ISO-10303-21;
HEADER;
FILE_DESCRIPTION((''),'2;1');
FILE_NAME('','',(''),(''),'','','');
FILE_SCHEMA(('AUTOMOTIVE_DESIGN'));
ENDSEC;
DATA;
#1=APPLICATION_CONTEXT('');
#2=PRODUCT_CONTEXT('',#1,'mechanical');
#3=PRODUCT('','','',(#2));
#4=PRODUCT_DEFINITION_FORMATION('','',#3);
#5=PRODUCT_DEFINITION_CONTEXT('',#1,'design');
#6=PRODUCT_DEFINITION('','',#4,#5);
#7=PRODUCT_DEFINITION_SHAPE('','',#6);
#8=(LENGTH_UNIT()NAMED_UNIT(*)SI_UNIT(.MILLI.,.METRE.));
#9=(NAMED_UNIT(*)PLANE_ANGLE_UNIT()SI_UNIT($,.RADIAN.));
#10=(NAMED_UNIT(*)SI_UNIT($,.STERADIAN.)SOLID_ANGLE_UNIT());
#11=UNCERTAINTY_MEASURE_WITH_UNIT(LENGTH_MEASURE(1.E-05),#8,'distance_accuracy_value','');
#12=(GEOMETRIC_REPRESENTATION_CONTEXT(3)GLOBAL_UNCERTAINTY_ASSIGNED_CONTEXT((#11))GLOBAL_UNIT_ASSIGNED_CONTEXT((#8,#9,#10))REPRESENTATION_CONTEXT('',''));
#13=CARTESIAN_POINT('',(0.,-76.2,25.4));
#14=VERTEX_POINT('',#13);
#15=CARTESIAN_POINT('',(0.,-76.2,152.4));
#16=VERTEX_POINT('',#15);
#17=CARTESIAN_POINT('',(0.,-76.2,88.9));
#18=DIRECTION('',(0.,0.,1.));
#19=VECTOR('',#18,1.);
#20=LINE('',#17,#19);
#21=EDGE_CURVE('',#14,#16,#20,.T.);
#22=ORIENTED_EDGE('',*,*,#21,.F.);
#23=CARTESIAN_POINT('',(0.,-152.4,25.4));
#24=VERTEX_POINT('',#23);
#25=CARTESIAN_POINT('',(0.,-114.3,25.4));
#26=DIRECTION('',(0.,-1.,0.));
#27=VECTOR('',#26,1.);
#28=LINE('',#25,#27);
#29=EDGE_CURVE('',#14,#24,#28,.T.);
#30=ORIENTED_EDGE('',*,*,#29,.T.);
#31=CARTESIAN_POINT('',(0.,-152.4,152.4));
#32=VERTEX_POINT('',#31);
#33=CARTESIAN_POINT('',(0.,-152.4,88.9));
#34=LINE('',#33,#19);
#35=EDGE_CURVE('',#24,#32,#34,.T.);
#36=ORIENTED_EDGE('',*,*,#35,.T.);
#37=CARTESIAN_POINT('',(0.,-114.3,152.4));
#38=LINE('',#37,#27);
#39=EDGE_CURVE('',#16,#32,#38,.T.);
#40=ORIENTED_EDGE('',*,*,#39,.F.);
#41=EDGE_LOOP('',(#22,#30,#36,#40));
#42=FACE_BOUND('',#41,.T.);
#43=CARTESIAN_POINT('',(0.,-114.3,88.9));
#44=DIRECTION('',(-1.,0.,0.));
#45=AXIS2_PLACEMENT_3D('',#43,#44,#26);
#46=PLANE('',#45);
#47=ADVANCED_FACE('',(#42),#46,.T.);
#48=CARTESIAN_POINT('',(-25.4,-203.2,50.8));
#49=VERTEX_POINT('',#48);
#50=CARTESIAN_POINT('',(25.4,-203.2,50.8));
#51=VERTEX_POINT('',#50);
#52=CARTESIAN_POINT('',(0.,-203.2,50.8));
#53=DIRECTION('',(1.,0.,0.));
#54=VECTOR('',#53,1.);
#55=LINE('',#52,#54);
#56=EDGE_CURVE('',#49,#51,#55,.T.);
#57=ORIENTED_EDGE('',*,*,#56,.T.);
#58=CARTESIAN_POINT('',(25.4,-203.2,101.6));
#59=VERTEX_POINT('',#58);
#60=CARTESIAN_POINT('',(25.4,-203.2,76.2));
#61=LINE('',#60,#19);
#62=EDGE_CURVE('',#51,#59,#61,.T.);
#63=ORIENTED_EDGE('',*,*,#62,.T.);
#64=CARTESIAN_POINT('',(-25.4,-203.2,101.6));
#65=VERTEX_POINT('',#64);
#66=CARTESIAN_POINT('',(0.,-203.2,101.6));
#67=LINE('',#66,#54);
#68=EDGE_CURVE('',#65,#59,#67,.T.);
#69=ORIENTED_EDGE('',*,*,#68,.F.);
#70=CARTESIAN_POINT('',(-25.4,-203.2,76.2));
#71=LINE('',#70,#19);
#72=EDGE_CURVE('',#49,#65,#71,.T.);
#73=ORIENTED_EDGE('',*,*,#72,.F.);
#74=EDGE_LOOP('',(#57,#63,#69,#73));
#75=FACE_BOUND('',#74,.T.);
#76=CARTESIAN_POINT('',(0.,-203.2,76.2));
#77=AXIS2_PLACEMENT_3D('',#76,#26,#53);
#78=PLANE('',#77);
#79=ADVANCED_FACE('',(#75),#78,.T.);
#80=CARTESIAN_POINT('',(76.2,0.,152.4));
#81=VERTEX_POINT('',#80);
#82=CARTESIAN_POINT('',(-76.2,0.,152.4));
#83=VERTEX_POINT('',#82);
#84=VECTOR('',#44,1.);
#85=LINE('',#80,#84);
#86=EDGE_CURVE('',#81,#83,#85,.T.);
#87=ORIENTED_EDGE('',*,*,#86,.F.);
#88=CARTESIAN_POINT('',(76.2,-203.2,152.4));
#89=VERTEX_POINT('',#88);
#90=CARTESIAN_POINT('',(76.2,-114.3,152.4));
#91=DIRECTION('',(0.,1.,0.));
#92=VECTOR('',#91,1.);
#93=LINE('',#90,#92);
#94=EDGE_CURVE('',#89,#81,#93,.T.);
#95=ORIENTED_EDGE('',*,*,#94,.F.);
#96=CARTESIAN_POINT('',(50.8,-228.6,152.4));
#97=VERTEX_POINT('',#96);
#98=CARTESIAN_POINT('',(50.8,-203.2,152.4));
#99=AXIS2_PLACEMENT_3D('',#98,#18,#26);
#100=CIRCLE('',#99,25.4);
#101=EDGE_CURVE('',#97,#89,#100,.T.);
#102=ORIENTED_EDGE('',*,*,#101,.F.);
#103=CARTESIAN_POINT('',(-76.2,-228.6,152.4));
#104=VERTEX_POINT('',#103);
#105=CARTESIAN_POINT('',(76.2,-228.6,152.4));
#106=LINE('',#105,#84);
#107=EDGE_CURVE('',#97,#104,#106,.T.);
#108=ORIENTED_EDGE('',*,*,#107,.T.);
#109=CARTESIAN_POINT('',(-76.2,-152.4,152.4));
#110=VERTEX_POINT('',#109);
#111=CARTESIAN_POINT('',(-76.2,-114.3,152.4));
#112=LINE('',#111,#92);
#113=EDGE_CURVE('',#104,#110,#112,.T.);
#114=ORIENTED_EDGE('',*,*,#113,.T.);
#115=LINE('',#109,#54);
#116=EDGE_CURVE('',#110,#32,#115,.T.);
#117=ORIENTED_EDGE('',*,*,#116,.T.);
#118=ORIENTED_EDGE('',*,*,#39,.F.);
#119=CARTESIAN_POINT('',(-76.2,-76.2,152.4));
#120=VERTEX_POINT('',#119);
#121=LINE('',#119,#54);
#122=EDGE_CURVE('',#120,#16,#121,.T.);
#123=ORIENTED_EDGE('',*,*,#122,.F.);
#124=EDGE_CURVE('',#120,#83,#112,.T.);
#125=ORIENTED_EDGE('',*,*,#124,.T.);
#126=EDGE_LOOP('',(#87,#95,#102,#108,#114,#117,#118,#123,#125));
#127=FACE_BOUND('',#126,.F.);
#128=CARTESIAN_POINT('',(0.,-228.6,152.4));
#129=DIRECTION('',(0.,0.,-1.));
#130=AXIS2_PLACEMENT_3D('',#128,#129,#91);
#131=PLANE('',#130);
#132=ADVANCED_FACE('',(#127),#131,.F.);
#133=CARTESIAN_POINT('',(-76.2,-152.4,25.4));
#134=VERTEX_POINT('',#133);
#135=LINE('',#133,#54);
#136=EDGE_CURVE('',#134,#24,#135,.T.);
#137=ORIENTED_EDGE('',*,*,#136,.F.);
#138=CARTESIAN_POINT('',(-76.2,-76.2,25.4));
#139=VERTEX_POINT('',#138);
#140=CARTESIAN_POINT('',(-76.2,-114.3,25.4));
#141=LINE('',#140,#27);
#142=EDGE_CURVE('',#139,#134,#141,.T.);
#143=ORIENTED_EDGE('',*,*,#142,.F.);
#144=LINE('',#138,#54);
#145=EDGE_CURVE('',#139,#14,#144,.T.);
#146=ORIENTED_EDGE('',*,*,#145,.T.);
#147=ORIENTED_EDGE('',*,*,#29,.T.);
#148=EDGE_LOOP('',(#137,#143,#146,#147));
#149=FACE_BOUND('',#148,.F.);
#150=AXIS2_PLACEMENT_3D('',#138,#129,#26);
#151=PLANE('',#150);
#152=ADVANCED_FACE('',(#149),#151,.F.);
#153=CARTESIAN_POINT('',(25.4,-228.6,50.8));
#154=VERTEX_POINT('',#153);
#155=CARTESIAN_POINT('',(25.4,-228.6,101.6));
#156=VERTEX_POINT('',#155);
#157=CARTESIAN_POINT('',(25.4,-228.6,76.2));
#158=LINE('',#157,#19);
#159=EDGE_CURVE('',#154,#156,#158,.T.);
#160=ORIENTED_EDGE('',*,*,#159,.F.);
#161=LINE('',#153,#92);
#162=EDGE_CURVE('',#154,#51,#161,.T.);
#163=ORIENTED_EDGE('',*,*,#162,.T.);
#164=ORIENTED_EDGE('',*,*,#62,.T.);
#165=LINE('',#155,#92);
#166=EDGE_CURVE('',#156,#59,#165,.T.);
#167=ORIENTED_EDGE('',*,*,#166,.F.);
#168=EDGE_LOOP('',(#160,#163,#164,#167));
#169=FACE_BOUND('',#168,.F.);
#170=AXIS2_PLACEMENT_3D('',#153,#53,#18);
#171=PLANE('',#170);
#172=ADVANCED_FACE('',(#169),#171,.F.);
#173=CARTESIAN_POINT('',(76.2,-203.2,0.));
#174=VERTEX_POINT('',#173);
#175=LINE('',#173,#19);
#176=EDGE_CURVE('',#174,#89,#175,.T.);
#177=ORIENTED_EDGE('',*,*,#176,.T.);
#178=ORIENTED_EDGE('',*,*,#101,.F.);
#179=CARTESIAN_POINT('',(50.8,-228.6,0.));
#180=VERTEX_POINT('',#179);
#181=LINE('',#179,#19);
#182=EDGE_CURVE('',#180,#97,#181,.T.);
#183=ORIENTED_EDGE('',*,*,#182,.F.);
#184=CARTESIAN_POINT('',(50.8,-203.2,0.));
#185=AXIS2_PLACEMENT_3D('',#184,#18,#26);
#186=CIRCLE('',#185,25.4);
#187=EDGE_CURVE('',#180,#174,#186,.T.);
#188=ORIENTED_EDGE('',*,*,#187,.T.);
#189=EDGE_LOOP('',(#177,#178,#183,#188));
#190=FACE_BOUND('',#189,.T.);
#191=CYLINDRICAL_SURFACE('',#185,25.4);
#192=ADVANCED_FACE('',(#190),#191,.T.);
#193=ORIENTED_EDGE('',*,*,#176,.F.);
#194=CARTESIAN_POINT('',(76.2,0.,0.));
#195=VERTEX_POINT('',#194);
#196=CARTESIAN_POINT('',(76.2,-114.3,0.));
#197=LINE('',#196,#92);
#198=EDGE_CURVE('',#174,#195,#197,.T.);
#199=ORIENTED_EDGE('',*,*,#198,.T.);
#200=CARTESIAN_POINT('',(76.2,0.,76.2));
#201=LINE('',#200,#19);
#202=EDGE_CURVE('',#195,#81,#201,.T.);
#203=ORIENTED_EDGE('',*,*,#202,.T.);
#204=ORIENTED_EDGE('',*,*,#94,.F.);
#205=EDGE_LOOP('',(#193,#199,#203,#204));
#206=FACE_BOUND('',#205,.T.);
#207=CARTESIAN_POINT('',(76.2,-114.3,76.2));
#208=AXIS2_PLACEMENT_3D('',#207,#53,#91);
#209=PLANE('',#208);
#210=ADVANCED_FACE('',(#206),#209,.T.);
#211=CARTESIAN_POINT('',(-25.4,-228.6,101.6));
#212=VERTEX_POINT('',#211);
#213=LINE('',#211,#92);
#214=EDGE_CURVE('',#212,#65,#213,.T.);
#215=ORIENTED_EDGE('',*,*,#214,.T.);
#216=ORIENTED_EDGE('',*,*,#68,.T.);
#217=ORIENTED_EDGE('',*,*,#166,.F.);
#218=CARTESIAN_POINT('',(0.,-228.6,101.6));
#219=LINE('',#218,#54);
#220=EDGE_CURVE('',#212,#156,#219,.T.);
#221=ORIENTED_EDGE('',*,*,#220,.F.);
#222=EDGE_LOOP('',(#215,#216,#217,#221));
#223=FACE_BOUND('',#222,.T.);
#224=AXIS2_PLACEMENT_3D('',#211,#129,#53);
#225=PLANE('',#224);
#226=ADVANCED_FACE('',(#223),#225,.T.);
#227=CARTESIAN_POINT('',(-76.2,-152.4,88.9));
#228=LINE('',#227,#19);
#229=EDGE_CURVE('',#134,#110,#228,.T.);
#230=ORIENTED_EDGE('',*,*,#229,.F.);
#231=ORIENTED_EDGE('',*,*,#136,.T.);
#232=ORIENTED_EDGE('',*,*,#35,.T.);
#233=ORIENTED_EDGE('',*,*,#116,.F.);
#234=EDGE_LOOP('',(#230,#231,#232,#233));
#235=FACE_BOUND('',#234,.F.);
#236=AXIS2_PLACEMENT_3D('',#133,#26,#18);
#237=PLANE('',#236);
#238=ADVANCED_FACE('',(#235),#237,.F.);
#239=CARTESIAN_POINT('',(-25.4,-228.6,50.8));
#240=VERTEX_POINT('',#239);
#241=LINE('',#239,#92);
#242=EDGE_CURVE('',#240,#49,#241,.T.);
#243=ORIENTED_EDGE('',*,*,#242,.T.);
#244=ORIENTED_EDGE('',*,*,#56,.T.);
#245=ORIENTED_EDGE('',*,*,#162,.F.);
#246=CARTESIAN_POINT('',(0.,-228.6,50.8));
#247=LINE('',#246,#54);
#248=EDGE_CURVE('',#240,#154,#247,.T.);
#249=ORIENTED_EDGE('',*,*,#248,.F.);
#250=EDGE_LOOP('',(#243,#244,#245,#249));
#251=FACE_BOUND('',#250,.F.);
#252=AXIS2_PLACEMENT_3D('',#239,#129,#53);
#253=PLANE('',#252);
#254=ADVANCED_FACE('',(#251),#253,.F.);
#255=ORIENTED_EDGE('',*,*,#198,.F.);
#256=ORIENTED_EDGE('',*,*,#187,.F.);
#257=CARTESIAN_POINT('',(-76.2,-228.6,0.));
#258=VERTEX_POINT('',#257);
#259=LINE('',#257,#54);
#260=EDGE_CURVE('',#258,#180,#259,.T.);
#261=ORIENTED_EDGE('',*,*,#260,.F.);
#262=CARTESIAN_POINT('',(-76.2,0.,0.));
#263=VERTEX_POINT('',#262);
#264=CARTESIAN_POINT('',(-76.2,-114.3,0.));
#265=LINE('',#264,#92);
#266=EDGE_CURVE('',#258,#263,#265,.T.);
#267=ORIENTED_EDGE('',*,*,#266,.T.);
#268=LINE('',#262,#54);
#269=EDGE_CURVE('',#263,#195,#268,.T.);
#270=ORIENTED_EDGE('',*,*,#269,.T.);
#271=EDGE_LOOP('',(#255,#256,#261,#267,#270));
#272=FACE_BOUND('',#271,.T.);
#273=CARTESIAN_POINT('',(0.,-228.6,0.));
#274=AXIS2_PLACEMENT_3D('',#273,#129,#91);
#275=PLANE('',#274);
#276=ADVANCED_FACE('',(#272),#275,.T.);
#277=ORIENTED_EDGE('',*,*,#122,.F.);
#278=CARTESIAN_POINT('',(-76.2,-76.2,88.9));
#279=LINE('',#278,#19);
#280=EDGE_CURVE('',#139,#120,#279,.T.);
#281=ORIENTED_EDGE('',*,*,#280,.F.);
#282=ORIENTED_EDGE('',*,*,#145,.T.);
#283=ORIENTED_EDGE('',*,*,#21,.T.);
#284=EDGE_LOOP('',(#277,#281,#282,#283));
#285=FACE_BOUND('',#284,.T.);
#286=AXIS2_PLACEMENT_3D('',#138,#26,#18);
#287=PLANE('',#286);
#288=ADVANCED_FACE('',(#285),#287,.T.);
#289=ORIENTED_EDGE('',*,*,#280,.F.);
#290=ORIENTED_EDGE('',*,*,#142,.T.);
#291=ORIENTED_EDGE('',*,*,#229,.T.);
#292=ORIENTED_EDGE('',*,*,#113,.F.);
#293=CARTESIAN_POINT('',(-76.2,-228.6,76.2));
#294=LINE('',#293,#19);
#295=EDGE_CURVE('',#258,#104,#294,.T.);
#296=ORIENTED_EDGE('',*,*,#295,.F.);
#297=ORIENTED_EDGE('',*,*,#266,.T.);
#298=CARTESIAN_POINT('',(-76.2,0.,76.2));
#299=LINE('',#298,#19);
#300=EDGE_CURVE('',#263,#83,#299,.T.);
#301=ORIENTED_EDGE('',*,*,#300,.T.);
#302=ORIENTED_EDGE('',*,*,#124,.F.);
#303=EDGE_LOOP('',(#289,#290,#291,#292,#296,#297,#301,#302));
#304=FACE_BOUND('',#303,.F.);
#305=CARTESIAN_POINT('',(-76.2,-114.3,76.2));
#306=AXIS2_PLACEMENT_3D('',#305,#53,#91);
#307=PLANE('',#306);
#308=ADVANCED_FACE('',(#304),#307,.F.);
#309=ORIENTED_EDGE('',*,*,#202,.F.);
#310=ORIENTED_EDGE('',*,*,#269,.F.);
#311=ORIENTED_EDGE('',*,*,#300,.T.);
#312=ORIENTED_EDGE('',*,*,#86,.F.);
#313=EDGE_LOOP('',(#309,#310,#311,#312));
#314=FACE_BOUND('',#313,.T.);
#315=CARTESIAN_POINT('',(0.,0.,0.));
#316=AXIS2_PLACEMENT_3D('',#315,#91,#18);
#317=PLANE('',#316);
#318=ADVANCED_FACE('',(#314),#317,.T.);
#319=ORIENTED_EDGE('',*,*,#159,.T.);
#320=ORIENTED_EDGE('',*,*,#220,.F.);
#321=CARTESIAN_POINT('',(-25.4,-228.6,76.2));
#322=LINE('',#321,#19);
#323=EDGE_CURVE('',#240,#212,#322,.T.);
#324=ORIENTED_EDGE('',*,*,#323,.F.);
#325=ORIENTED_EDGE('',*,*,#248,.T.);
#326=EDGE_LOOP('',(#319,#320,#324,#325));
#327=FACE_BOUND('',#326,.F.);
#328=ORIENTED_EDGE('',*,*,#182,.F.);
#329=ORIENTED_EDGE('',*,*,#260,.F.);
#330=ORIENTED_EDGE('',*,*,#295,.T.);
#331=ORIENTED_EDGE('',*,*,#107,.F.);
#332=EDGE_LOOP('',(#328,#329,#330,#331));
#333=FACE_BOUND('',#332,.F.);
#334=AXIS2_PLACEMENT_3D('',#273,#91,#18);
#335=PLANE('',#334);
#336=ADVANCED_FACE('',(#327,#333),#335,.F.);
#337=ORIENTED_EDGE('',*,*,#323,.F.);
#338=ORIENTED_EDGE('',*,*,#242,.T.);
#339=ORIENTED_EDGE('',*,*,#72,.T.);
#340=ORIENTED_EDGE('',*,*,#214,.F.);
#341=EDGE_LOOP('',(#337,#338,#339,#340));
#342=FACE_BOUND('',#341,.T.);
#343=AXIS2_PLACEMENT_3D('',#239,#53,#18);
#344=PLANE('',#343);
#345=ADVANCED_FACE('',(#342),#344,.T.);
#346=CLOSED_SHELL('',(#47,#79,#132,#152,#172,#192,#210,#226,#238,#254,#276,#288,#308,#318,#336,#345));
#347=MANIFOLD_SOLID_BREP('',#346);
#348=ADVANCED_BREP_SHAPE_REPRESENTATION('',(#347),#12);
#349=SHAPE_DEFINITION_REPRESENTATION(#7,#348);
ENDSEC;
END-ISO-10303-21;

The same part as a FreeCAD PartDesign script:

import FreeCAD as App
import Part
import Sketcher
from FreeCAD import Vector
Q = App.Units.Quantity


def edges_at(feature, points):
    """Names of the edges that pass closest to the given points."""
    edges = feature.Shape.Edges
    near = lambda p: min(range(len(edges)), key=lambda i: edges[i].distToShape(Part.Vertex(*p))[0])
    return sorted({f"Edge{near(p) + 1}" for p in points})


def add_polygon(sketch, points):
    """Adds a closed chain of lines whose ends are joined by coincident constraints."""
    first, n = sketch.GeometryCount, len(points)
    for a, b in zip(points, points[1:] + points[:1]):
        sketch.addGeometry(Part.LineSegment(App.Vector(*a, 0), App.Vector(*b, 0)), False)
    for i in range(n):
        sketch.addConstraint(Sketcher.Constraint("Coincident", first + i, 2, first + (i + 1) % n, 1))

doc = App.newDocument("Part")
params = doc.addObject("Spreadsheet::Sheet", "Params")
for row, (alias, value) in enumerate([
    ("sketch1_width", "9 in"),
    ("sketch1_height", "6 in"),
    ("pad1_length", "6 in"),
    ("sketch2_width", "3 in"),
    ("sketch2_height", "5 in"),
    ("pocket1_length", "3 in"),
    ("fillet_radius", "1 in"),
    ("sketch3_width", "2 in"),
    ("pocket2_length", "1 in"),
], start=1):
    params.set(f"A{row}", alias)
    params.set(f"B{row}", "=" + value)
    params.setAlias(f"B{row}", alias)

body = doc.addObject("PartDesign::Body", "Body")

# Sketch on YZ plane
sketch1 = doc.addObject("Sketcher::SketchObject", "Sketch")
body.addObject(sketch1)
sketch1.AttachmentSupport = (doc.YZ_Plane, [""])
sketch1.MapMode = "FlatFace"
add_polygon(sketch1, [(-229, 152), (-229, 0), (0, 0), (0, 152)])  # lines 0-3
sketch1.addConstraint([
    Sketcher.Constraint("Vertical", 0),
    Sketcher.Constraint("Horizontal", 1),
    Sketcher.Constraint("Vertical", 2),
    Sketcher.Constraint("Horizontal", 3),
    Sketcher.Constraint("Coincident", 1, 2, -1, 1),
    Sketcher.Constraint("DistanceX", 1, 1, 1, 2, Q("9 in")),
    Sketcher.Constraint("DistanceY", 0, 2, 0, 1, Q("6 in")),
])
sketch1.setExpression("Constraints[9]", "Params.sketch1_width")
sketch1.setExpression("Constraints[10]", "Params.sketch1_height")
pad1 = doc.addObject("PartDesign::Pad", "Pad")
body.addObject(pad1)
pad1.Profile = sketch1
pad1.setExpression("Length", "Params.pad1_length")
pad1.Midplane = True

# Sketch on YZ plane
sketch2 = doc.addObject("Sketcher::SketchObject", "Sketch001")
body.addObject(sketch2)
sketch2.AttachmentSupport = (doc.YZ_Plane, [""])
sketch2.MapMode = "FlatFace"
sketch2.AttachmentOffset = App.Placement(Vector(0, 0, -3 * 25.4), App.Rotation())
add_polygon(sketch2, [(-76, 152), (-76, 25), (-152, 25), (-152, 152)])  # lines 0-3
sketch2.addConstraint([
    Sketcher.Constraint("Vertical", 0),
    Sketcher.Constraint("Horizontal", 1),
    Sketcher.Constraint("Vertical", 2),
    Sketcher.Constraint("Horizontal", 3),
    Sketcher.Constraint("DistanceX", 1, 2, 1, 1, Q("3 in")),
    Sketcher.Constraint("DistanceY", 0, 2, 0, 1, Q("5 in")),
    Sketcher.Constraint("DistanceX", 0, 2, -1, 1, Q("3 in")),
    Sketcher.Constraint("DistanceY", -1, 1, 0, 2, Q("1 in")),
])
sketch2.setExpression("Constraints[8]", "Params.sketch2_width")
sketch2.setExpression("Constraints[9]", "Params.sketch2_height")
pocket1 = doc.addObject("PartDesign::Pocket", "Pocket")
body.addObject(pocket1)
pocket1.Profile = sketch2
pocket1.setExpression("Length", "Params.pocket1_length")
pocket1.Reversed = True
doc.recompute()

fillet = doc.addObject("PartDesign::Fillet", "Fillet")
body.addObject(fillet)
fillet.Base = (pocket1, edges_at(pocket1, [(76.2, -228.6, 76.2)]))
fillet.setExpression("Radius", "Params.fillet_radius")

# Sketch on XZ plane
sketch3 = doc.addObject("Sketcher::SketchObject", "Sketch002")
body.addObject(sketch3)
sketch3.AttachmentSupport = (doc.XZ_Plane, [""])
sketch3.MapMode = "FlatFace"
sketch3.AttachmentOffset = App.Placement(Vector(0, 0, 9 * 25.4), App.Rotation())
add_polygon(sketch3, [(-25, 102), (-25, 51), (25, 51), (25, 102)])  # lines 0-3
sketch3.addConstraint([
    Sketcher.Constraint("Vertical", 0),
    Sketcher.Constraint("Horizontal", 1),
    Sketcher.Constraint("Vertical", 2),
    Sketcher.Constraint("Horizontal", 3),
    Sketcher.Constraint("Equal", 3, 0),
    Sketcher.Constraint("DistanceX", 1, 1, 1, 2, Q("2 in")),
    Sketcher.Constraint("DistanceX", 0, 2, -1, 1, Q("1 in")),
    Sketcher.Constraint("DistanceY", -1, 1, 0, 2, Q("2 in")),
])
sketch3.setExpression("Constraints[9]", "Params.sketch3_width")
pocket2 = doc.addObject("PartDesign::Pocket", "Pocket001")
body.addObject(pocket2)
pocket2.Profile = sketch3
pocket2.setExpression("Length", "Params.pocket2_length")

doc.recompute()
